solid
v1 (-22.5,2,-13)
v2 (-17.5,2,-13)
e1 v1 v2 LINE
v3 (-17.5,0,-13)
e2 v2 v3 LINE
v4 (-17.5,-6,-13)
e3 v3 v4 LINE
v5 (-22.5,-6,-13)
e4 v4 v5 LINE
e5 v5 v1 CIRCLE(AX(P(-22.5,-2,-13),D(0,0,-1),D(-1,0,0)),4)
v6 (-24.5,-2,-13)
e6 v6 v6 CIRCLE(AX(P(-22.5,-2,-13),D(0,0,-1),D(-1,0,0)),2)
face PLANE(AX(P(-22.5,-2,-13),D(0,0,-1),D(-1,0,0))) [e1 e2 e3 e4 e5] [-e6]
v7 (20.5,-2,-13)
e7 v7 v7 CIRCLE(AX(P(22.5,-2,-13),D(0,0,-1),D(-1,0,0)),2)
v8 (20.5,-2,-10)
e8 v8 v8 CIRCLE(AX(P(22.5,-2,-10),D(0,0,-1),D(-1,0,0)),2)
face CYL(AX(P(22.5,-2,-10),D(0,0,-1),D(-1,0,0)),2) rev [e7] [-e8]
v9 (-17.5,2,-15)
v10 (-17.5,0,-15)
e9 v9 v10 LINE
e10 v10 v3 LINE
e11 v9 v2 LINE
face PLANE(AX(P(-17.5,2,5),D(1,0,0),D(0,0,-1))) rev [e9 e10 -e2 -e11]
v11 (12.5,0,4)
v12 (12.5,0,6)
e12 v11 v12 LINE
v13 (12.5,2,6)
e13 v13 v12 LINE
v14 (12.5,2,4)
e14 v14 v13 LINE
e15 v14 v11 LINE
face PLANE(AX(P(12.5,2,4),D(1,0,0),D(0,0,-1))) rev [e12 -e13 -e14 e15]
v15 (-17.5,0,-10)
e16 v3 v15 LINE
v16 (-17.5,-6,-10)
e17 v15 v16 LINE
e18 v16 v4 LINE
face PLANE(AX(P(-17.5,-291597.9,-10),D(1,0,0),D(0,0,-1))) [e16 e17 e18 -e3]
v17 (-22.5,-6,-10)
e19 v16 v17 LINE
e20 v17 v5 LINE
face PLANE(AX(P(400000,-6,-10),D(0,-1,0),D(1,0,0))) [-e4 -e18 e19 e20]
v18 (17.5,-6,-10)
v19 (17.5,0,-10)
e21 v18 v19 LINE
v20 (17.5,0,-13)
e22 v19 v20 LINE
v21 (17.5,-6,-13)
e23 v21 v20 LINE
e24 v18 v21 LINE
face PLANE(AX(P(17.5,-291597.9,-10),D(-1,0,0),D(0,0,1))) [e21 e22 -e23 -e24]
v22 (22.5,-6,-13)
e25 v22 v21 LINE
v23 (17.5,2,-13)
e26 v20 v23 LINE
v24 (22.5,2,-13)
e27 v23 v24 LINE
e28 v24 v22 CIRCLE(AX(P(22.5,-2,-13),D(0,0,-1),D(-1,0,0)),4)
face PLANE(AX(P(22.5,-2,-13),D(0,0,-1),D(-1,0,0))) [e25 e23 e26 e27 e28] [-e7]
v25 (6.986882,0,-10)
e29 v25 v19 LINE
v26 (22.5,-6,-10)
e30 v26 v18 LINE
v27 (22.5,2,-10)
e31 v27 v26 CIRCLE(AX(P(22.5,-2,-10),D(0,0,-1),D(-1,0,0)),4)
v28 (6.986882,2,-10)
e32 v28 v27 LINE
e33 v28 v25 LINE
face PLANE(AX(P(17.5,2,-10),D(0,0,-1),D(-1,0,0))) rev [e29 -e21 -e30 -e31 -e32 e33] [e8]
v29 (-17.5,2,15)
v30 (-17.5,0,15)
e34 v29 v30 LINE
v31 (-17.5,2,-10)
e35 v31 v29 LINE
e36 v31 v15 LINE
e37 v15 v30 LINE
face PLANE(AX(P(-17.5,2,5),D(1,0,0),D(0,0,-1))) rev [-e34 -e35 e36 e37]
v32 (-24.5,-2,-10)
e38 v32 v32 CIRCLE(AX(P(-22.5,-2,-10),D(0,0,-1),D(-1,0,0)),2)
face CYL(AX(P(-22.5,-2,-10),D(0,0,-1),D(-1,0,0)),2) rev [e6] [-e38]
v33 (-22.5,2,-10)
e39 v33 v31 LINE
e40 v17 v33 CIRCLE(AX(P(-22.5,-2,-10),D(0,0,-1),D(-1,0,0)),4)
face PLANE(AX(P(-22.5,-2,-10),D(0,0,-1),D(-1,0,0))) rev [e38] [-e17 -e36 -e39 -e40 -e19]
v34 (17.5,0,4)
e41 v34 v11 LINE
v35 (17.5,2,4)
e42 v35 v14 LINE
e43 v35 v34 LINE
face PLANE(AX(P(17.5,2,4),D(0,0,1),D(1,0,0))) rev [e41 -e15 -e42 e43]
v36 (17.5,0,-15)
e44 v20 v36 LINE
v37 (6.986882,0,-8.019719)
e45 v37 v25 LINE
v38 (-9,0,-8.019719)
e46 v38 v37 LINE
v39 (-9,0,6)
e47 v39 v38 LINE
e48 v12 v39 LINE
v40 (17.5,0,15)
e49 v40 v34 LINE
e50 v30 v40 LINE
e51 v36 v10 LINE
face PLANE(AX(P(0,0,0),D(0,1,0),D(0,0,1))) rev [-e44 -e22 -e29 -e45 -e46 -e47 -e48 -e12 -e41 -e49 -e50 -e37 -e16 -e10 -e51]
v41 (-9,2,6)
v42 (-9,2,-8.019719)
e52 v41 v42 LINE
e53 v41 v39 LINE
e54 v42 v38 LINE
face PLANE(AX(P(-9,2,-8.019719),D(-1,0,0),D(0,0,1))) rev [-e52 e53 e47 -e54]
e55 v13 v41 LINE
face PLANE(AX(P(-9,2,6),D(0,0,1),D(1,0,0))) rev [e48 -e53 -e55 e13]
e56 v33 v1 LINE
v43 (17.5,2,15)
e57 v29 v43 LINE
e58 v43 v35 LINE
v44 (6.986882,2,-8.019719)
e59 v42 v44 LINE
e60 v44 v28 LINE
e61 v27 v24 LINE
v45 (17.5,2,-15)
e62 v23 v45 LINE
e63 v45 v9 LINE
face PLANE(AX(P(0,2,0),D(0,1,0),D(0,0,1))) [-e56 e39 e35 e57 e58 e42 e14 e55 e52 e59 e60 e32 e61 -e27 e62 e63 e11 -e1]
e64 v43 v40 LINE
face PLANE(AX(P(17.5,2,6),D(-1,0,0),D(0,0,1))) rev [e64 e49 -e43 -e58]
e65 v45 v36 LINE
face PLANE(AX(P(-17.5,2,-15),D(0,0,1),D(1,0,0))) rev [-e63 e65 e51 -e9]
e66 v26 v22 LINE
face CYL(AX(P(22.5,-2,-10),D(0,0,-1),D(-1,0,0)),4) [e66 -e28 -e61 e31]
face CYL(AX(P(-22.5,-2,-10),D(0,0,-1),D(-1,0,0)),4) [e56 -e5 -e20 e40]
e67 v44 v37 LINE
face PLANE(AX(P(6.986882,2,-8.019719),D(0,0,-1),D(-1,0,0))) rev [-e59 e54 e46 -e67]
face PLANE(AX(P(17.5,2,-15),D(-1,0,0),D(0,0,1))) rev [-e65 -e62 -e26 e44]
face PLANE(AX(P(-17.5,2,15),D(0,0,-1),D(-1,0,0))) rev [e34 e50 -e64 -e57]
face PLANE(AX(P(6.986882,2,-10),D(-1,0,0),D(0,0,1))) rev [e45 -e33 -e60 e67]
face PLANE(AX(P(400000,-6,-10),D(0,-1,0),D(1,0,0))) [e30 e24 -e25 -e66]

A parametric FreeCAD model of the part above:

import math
import FreeCAD as App
import Part
import Sketcher


def add_polygon(sketch, points):
    """Adds a closed chain of lines whose ends are joined by coincident constraints."""
    first, n = sketch.GeometryCount, len(points)
    for a, b in zip(points, points[1:] + points[:1]):
        sketch.addGeometry(Part.LineSegment(App.Vector(*a, 0), App.Vector(*b, 0)), False)
    for i in range(n):
        sketch.addConstraint(Sketcher.Constraint("Coincident", first + i, 2, first + (i + 1) % n, 1))

doc = App.newDocument("Part")
body = doc.addObject("PartDesign::Body", "Body")

# Sketch on XZ plane
sketch1 = body.newObject("Sketcher::SketchObject", "Sketch")
sketch1.AttachmentSupport = (doc.getObject("XZ_Plane"), [""])
sketch1.MapMode = "FlatFace"
add_polygon(sketch1, [(-17.5, 15), (17.5, 15), (17.5, 4), (12.5, 4), (12.5, 6), (-9, 6), (-9, -8), (7, -8), (7, -10), (17.5, -10), (17.5, -15), (-17.5, -15)])  # lines 0-11
sketch1.addConstraint([
    Sketcher.Constraint("Horizontal", 0),
    Sketcher.Constraint("Vertical", 1),
    Sketcher.Constraint("Horizontal", 2),
    Sketcher.Constraint("Vertical", 3),
    Sketcher.Constraint("Horizontal", 4),
    Sketcher.Constraint("Vertical", 5),
    Sketcher.Constraint("Horizontal", 6),
    Sketcher.Constraint("Vertical", 7),
    Sketcher.Constraint("Horizontal", 8),
    Sketcher.Constraint("Vertical", 9),
    Sketcher.Constraint("Horizontal", 10),
    Sketcher.Constraint("Vertical", 11),
    Sketcher.Constraint("Symmetric", 0, 2, 10, 2, -1, 1),
    Sketcher.Constraint("Vertical", 1, 2, 8, 2),
    Sketcher.Constraint("Equal", 2, 9),
    Sketcher.Constraint("DistanceX", 0, 1, 0, 2, 35.0),
    Sketcher.Constraint("DistanceX", 2, 2, 2, 1, 5.0),
    Sketcher.Constraint("DistanceY", 1, 2, 1, 1, 11.0),
    Sketcher.Constraint("DistanceY", 3, 1, 3, 2, 2.0),
    Sketcher.Constraint("DistanceY", 11, 1, 11, 2, 30.0),
    Sketcher.Constraint("DistanceX", 4, 2, 4, 1, 21.5),
    Sketcher.Constraint("DistanceX", 6, 1, 6, 2, 15.986882),
    Sketcher.Constraint("DistanceY", 5, 2, 5, 1, 14.019719),
])
pad1 = body.newObject("PartDesign::Pad", "Pad")
pad1.Profile = sketch1
pad1.Length = 2
pad1.Reversed = True

# Sketch on XY plane
sketch2 = body.newObject("Sketcher::SketchObject", "Sketch001")
sketch2.AttachmentSupport = (doc.getObject("XY_Plane"), [""])
sketch2.MapMode = "FlatFace"
sketch2.AttachmentOffset = App.Placement(App.Vector(0, 0, -13), App.Rotation())
sketch2.addGeometry([
    Part.LineSegment(App.Vector(17.5, -6, 0), App.Vector(17.5, 2, 0)),  # 0
    Part.LineSegment(App.Vector(17.5, 2, 0), App.Vector(22.5, 2, 0)),  # 1
    Part.ArcOfCircle(Part.Circle(App.Vector(22.5, -2, 0), App.Vector(0, 0, 1), 4), math.radians(-90), math.radians(90)),  # 2
    Part.LineSegment(App.Vector(22.5, -6, 0), App.Vector(17.5, -6, 0)),  # 3
    Part.Circle(App.Vector(22.5, -2, 0), App.Vector(0, 0, 1), 2),  # 4
    Part.LineSegment(App.Vector(-17.5, 2, 0), App.Vector(-17.5, -6, 0)),  # 5
    Part.LineSegment(App.Vector(-17.5, -6, 0), App.Vector(-22.5, -6, 0)),  # 6
    Part.ArcOfCircle(Part.Circle(App.Vector(-22.5, -2, 0), App.Vector(0, 0, 1), 4), math.radians(90), math.radians(270)),  # 7
    Part.LineSegment(App.Vector(-22.5, 2, 0), App.Vector(-17.5, 2, 0)),  # 8
    Part.Circle(App.Vector(-22.5, -2, 0), App.Vector(0, 0, 1), 2),  # 9
], False)
sketch2.addConstraint([
    Sketcher.Constraint("Coincident", 0, 2, 1, 1),
    Sketcher.Constraint("Tangent", 1, 2, 2, 2),
    Sketcher.Constraint("Tangent", 2, 1, 3, 1),
    Sketcher.Constraint("Coincident", 3, 2, 0, 1),
    Sketcher.Constraint("Coincident", 5, 2, 6, 1),
    Sketcher.Constraint("Tangent", 6, 2, 7, 2),
    Sketcher.Constraint("Tangent", 7, 1, 8, 1),
    Sketcher.Constraint("Coincident", 8, 2, 5, 1),
    Sketcher.Constraint("Vertical", 0),
    Sketcher.Constraint("Horizontal", 1),
    Sketcher.Constraint("Horizontal", 3),
    Sketcher.Constraint("Vertical", 5),
    Sketcher.Constraint("Horizontal", 6),
    Sketcher.Constraint("Horizontal", 8),
    Sketcher.Constraint("Coincident", 4, 3, 2, 3),
    Sketcher.Constraint("Coincident", 9, 3, 7, 3),
    Sketcher.Constraint("Equal", 2, 7),
    Sketcher.Constraint("Equal", 4, 9),
    Sketcher.Constraint("Symmetric", 2, 3, 7, 3, -2),
    Sketcher.Constraint("Equal", 3, 6),
    Sketcher.Constraint("Diameter", 4, 4.0),
    Sketcher.Constraint("Radius", 2, 4.0),
    Sketcher.Constraint("DistanceX", 1, 1, 1, 2, 5.0),
    Sketcher.Constraint("DistanceY", 2, 3, -1, 1, 2.0),
    Sketcher.Constraint("DistanceX", 7, 3, 2, 3, 45.0),
])
pad2 = body.newObject("PartDesign::Pad", "Pad001")
pad2.Profile = sketch2
pad2.Length = 3

doc.recompute()
